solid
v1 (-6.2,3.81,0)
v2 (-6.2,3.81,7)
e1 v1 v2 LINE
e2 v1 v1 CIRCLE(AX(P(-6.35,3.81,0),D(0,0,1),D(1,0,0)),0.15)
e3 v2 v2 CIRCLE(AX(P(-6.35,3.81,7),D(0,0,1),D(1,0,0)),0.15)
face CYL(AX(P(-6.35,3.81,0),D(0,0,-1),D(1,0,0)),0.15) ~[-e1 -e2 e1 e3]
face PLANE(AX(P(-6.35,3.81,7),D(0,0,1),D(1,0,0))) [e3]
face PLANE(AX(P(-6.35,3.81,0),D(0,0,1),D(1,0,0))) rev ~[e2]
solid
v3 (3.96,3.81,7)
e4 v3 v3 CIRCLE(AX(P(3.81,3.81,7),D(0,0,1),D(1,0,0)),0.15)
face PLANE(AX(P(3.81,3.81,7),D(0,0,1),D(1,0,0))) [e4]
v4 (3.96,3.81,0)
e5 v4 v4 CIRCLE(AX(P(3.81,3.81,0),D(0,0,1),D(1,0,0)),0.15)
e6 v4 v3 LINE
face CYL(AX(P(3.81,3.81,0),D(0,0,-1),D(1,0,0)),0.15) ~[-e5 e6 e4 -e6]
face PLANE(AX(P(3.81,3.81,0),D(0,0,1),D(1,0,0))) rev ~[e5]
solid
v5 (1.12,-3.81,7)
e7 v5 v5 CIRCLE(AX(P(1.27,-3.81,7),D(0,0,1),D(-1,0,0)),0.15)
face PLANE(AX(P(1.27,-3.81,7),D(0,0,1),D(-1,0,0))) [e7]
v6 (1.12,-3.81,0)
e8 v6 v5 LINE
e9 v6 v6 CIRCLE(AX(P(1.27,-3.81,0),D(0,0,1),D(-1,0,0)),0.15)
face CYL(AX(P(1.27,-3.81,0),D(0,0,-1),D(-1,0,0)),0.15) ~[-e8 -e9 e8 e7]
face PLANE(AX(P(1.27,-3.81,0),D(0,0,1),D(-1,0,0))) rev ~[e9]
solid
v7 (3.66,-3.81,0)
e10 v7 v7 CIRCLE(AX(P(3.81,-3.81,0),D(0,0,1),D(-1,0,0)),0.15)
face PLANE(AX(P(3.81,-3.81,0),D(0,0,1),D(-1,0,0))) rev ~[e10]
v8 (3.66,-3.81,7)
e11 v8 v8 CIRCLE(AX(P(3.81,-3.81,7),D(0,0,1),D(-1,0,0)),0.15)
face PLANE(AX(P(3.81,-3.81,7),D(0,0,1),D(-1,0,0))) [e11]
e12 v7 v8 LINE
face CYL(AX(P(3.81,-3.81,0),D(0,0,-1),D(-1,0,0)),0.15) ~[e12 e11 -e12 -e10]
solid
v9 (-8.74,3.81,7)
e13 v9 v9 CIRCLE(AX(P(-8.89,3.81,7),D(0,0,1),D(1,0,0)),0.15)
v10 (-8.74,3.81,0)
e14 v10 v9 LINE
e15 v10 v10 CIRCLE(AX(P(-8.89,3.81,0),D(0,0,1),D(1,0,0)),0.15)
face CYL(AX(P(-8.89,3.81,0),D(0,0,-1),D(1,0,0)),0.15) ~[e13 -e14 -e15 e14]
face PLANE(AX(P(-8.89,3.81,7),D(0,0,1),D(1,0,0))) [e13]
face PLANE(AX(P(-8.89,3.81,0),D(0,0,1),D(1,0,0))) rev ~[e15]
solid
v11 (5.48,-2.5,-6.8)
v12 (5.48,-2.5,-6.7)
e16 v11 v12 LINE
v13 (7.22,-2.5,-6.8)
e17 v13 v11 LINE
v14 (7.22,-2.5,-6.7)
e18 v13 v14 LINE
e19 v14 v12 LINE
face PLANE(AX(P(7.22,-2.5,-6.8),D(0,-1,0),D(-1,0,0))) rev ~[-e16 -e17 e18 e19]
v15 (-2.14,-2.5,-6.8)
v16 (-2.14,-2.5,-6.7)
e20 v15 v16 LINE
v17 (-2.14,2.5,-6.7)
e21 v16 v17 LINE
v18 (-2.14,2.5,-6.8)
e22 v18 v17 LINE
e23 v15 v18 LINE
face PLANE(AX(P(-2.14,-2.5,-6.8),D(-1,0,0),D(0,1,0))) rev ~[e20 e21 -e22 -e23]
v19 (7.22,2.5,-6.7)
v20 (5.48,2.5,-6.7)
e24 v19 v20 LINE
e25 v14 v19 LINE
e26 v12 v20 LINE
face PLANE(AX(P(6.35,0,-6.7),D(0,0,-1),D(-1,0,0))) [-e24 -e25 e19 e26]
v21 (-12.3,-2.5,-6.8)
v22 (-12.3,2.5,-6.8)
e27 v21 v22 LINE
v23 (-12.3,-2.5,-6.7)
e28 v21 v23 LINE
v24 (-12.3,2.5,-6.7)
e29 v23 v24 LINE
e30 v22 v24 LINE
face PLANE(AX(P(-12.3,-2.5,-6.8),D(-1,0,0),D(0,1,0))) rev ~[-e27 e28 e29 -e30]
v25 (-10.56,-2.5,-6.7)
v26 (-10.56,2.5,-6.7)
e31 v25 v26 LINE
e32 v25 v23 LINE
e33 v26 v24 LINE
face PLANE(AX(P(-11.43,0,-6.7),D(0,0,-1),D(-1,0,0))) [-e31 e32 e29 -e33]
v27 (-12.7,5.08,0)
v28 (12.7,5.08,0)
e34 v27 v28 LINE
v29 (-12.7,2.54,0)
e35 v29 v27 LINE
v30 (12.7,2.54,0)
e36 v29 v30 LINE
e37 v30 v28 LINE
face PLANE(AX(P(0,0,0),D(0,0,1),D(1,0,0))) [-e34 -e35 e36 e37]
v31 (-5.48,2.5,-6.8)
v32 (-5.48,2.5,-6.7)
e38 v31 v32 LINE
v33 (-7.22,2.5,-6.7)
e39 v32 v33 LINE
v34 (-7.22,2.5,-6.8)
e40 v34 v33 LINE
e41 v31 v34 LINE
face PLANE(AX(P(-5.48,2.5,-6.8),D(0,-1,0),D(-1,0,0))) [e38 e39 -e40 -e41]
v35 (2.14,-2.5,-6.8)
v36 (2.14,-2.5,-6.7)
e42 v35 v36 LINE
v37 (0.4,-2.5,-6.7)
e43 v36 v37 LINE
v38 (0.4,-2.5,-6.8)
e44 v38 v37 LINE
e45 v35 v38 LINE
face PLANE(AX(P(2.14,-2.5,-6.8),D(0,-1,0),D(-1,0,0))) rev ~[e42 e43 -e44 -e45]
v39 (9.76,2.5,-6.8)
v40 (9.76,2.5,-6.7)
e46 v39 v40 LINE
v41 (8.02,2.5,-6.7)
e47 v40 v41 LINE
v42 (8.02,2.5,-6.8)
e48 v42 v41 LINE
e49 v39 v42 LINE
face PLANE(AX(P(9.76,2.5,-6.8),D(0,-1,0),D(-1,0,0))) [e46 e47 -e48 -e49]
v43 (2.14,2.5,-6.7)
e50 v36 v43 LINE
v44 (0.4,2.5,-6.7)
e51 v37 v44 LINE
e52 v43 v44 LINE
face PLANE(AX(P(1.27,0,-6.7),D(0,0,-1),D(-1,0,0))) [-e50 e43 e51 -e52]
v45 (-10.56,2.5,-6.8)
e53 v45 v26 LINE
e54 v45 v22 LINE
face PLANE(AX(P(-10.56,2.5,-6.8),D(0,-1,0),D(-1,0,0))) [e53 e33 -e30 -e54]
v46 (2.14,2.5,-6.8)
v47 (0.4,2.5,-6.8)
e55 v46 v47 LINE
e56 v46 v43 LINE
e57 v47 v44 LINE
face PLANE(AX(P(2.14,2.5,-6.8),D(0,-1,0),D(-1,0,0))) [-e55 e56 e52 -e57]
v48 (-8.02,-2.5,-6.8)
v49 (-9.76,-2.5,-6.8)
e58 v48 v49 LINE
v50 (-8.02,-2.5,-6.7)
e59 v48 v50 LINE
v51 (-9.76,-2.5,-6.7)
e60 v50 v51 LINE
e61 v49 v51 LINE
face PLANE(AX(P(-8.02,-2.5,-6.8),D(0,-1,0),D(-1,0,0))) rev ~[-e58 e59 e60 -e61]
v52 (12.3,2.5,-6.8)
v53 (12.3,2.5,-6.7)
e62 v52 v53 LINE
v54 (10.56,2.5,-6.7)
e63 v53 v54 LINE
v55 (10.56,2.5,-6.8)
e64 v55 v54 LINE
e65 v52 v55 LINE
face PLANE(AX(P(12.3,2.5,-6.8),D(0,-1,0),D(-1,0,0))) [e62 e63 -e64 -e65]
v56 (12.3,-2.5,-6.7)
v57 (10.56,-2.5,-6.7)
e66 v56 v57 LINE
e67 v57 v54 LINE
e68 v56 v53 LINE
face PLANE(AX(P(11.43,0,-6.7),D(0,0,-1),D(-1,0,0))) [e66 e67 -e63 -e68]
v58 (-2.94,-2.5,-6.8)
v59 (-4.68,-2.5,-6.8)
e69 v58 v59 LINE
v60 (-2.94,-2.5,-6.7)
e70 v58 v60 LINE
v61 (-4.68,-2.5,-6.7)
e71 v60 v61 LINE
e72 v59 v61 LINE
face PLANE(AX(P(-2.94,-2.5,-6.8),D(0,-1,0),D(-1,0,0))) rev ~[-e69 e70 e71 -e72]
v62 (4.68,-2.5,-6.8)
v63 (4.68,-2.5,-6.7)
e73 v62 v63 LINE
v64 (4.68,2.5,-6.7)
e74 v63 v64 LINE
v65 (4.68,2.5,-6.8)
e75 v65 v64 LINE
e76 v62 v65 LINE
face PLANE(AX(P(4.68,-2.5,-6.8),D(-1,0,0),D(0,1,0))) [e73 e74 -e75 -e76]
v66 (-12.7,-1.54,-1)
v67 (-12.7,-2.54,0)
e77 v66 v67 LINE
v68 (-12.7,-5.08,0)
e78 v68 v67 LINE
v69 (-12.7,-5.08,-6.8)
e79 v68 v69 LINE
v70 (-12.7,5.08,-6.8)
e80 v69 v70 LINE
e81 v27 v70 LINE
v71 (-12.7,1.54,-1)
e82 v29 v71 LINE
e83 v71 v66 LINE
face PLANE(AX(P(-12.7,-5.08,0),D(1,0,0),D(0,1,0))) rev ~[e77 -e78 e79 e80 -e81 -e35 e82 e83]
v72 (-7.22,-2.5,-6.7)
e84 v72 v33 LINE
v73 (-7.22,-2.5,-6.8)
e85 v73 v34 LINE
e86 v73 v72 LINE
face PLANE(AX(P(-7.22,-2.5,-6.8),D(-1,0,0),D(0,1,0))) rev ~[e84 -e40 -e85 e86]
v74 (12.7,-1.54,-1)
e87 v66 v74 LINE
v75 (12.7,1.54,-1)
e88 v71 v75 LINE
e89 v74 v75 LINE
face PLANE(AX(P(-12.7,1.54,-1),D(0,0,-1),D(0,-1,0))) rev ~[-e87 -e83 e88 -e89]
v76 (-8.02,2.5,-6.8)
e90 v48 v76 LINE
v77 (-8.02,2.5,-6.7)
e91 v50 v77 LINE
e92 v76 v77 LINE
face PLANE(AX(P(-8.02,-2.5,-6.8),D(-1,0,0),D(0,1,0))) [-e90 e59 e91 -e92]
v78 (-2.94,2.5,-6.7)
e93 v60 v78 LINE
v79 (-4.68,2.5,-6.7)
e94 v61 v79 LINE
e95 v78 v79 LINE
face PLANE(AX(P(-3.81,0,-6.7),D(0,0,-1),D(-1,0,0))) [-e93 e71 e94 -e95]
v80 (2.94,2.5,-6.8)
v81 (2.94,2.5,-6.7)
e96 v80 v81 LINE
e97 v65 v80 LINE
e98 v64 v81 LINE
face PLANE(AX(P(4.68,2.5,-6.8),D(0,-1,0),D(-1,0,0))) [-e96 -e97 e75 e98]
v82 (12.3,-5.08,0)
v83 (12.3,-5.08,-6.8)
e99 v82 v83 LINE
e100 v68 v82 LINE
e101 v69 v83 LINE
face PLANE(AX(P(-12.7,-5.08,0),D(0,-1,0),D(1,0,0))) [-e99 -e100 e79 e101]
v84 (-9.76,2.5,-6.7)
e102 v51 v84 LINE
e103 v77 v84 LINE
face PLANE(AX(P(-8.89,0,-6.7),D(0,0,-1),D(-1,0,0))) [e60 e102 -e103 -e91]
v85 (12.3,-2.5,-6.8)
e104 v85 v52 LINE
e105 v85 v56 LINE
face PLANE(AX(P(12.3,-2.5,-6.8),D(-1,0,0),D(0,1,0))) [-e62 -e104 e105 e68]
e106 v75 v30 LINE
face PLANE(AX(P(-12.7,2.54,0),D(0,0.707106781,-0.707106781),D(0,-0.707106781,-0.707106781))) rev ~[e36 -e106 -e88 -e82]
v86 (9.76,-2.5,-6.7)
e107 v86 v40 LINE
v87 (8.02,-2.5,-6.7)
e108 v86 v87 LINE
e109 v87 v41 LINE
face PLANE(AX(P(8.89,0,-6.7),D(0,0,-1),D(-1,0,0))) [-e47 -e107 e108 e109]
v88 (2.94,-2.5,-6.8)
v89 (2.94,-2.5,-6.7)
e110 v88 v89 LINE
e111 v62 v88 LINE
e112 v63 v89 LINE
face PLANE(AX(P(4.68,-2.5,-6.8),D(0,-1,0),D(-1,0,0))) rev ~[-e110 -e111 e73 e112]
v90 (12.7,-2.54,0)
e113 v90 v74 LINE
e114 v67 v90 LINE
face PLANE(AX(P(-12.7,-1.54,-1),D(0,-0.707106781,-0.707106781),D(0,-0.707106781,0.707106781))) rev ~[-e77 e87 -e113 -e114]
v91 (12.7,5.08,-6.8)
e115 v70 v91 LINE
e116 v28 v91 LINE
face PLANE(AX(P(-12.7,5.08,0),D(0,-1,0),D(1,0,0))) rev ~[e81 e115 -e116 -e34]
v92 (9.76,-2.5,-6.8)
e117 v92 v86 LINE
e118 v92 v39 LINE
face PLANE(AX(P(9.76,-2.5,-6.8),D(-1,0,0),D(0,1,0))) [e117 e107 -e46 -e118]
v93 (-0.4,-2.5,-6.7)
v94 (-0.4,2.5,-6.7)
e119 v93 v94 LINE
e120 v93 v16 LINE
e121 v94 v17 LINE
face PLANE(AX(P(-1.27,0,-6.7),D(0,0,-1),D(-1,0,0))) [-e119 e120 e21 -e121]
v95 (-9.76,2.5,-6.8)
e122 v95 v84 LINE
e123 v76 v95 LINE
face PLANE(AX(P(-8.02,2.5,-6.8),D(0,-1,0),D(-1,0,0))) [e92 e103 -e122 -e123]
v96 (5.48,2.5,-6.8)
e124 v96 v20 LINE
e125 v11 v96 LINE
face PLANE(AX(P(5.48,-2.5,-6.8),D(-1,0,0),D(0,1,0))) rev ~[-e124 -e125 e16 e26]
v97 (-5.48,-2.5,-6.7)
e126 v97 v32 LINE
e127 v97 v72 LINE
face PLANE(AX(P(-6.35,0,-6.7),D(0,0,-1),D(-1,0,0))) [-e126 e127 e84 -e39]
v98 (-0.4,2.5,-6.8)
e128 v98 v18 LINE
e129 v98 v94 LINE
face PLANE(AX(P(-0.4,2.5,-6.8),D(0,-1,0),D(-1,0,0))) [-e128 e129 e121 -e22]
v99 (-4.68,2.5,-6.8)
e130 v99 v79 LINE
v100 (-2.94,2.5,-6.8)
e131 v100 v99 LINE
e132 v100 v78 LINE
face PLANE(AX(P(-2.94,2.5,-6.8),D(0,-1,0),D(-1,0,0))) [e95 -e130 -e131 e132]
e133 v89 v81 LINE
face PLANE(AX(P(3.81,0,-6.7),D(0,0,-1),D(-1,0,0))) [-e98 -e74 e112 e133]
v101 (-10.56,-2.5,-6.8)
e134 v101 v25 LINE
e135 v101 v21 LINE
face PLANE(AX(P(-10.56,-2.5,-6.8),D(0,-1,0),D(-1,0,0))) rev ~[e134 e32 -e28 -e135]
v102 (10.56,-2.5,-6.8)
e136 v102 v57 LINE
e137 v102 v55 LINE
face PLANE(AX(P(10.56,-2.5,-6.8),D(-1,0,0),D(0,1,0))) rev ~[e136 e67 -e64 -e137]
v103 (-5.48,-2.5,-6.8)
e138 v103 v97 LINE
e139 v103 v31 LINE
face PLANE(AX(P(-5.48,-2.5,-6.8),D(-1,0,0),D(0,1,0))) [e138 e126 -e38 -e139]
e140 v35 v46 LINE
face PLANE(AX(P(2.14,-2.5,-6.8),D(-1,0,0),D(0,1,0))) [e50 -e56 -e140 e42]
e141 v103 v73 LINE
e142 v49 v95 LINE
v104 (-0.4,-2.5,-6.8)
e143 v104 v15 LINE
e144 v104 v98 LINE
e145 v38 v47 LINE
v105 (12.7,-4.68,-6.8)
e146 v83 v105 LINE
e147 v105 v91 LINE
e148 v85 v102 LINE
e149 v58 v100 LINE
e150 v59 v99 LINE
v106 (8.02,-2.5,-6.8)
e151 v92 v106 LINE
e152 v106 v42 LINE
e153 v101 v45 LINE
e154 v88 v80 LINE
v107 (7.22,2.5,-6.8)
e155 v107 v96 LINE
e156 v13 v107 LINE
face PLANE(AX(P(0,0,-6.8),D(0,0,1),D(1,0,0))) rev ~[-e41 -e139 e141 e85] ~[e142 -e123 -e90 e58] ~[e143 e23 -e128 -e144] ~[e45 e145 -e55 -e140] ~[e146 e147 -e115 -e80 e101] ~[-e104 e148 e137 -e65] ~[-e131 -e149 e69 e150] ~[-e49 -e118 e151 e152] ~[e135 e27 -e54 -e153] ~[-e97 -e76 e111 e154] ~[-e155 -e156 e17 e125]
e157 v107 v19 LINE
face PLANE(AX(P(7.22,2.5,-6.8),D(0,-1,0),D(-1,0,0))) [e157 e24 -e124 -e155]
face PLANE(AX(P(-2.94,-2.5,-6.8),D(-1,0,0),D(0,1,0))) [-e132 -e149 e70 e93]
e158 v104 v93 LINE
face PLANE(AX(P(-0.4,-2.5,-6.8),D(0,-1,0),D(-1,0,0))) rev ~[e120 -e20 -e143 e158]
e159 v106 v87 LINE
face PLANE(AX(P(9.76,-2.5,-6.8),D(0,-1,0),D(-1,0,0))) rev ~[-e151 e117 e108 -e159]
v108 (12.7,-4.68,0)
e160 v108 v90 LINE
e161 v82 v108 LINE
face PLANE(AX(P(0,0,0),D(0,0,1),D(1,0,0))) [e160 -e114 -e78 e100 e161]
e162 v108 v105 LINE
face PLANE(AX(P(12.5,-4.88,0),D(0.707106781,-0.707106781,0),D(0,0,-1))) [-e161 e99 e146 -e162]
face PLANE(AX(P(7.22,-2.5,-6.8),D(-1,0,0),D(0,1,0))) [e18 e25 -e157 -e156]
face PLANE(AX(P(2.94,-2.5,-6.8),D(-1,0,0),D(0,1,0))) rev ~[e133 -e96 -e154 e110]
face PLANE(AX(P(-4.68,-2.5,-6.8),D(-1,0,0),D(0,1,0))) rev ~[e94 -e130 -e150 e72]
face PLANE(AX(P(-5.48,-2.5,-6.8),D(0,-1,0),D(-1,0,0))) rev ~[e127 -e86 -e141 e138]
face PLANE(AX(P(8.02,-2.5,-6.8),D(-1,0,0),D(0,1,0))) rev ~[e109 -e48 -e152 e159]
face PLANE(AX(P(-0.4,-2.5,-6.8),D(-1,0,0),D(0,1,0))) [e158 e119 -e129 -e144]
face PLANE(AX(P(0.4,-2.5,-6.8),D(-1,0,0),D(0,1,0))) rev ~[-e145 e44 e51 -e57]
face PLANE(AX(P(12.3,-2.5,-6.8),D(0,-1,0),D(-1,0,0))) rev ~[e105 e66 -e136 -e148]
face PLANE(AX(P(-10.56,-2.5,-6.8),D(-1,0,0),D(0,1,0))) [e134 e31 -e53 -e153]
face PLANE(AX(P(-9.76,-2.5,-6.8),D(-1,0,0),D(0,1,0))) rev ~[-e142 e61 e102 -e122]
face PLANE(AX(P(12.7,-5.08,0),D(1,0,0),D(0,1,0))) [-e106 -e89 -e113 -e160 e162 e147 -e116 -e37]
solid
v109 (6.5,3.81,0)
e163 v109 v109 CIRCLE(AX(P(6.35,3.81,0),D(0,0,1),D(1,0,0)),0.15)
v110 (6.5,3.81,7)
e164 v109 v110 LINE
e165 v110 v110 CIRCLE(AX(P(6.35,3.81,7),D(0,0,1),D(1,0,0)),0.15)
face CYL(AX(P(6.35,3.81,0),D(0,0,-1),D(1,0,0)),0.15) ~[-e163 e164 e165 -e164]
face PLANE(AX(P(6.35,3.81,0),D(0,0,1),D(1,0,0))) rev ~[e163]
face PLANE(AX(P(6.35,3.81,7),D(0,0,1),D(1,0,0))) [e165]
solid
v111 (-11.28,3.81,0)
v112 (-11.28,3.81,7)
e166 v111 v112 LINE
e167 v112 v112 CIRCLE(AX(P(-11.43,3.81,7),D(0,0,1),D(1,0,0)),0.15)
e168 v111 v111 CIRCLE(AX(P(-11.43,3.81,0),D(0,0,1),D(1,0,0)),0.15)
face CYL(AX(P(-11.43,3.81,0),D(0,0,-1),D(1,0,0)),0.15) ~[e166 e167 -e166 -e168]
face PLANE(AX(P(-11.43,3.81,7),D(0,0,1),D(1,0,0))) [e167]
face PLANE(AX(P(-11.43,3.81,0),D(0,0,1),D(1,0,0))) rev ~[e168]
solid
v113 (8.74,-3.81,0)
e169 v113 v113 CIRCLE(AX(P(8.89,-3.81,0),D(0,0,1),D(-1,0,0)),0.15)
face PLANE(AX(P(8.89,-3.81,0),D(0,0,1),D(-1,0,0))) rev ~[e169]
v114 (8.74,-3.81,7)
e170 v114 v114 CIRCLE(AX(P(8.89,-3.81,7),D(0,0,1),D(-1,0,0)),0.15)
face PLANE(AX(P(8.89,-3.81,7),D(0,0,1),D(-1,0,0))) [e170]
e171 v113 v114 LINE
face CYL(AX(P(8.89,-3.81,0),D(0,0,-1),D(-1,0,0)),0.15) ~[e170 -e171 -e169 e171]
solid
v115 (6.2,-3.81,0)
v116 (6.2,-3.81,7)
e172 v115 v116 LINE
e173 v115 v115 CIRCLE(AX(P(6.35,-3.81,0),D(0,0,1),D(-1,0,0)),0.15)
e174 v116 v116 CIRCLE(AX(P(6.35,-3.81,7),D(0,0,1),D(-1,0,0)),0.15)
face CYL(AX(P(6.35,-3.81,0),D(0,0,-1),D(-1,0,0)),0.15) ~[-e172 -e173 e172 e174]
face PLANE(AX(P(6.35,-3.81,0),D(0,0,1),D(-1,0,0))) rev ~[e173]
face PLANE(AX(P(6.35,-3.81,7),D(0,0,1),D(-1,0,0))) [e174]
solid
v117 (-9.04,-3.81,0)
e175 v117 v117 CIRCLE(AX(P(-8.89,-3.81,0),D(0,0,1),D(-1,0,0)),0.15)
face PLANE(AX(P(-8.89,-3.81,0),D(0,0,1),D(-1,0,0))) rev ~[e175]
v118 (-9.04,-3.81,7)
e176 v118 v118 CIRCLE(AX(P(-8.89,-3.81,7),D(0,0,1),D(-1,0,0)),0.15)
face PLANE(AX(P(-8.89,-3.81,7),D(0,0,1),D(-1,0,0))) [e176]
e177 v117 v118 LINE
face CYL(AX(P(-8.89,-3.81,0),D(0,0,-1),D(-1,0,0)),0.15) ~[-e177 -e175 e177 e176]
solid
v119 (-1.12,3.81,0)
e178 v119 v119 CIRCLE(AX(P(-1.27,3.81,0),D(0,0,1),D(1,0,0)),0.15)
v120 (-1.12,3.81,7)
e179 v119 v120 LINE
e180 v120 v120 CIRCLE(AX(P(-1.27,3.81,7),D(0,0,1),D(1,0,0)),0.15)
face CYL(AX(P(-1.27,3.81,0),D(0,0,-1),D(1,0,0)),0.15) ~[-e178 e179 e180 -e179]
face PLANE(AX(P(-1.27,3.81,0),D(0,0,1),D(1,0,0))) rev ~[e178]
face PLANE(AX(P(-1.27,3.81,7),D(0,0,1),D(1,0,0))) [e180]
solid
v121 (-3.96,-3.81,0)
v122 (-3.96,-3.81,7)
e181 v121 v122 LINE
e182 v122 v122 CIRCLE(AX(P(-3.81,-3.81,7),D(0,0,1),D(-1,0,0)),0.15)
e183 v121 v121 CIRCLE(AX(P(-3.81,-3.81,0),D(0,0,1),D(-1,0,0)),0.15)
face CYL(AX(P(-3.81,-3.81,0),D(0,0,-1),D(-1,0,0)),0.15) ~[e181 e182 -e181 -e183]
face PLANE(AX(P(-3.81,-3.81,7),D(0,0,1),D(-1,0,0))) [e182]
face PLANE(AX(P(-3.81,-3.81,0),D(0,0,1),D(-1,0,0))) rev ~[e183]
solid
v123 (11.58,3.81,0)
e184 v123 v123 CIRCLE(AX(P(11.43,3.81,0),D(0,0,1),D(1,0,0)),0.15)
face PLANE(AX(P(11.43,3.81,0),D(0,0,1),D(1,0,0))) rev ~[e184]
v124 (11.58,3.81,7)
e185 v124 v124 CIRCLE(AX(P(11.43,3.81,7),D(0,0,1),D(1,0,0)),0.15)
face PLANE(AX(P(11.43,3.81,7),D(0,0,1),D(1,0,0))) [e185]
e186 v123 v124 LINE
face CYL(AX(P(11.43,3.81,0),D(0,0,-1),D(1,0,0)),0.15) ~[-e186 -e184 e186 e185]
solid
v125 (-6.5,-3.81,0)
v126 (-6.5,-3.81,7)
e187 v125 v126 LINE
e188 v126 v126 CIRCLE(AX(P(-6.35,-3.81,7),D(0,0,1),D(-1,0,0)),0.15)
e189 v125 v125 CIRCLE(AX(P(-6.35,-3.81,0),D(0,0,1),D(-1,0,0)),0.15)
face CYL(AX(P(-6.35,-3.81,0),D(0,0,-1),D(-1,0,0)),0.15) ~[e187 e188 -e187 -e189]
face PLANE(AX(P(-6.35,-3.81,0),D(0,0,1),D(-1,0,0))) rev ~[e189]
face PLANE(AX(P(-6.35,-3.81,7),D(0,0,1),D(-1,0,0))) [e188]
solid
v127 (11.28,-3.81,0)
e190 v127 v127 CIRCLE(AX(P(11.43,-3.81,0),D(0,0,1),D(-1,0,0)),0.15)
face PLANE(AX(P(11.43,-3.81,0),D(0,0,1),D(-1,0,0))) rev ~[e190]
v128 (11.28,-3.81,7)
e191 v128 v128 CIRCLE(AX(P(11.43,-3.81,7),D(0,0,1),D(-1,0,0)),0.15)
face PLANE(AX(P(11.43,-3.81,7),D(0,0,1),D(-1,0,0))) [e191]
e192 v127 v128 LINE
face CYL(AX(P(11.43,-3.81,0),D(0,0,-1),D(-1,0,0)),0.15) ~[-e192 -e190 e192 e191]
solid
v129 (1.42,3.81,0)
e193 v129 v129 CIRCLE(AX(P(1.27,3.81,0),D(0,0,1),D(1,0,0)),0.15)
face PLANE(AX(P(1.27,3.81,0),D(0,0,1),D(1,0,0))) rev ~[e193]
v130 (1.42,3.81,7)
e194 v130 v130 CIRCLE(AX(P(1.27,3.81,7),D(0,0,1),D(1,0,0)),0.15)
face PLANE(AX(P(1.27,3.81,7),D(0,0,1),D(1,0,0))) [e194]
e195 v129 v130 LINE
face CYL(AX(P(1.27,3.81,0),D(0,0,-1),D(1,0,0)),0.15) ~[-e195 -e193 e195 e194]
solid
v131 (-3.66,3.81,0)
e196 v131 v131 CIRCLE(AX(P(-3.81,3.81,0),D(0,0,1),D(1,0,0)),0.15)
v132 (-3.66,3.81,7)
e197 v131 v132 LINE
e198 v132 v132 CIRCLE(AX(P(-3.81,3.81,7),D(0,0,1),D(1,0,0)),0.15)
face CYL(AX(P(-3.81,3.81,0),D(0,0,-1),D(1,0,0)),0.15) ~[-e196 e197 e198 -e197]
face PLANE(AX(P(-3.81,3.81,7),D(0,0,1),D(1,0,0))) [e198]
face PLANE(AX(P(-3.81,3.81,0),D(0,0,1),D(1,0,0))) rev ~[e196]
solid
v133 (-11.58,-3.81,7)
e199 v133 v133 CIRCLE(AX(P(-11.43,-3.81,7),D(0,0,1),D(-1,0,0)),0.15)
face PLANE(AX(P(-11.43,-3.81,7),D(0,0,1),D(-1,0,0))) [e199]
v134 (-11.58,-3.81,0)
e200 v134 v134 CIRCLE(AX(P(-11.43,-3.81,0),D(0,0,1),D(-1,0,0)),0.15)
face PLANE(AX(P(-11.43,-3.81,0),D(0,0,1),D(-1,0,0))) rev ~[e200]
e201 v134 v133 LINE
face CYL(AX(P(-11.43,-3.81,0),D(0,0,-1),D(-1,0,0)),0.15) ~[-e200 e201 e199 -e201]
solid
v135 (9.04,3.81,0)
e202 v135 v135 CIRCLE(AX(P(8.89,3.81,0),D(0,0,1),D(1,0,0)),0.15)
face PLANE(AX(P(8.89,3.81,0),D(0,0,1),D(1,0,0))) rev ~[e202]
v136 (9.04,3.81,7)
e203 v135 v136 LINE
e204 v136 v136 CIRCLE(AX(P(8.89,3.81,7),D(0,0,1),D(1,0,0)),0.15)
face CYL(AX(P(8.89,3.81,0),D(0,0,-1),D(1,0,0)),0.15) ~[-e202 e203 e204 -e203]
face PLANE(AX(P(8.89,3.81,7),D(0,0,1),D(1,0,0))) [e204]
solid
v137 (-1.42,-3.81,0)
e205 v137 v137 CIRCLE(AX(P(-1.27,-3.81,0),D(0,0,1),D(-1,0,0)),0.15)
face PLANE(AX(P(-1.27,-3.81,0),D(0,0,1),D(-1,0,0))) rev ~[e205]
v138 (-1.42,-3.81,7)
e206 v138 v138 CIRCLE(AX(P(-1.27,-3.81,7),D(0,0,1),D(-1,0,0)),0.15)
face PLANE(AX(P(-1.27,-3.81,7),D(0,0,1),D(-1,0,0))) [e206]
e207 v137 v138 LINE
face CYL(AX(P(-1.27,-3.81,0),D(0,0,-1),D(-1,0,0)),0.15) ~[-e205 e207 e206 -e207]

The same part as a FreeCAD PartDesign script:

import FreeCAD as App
import Part
import Sketcher

V = App.Vector


def edges_at(feature, points):
    """Names of the edges that pass closest to the given points."""
    edges = feature.Shape.Edges
    near = lambda p: min(range(len(edges)), key=lambda i: edges[i].distToShape(Part.Vertex(*p))[0])
    return sorted({f"Edge{near(p) + 1}" for p in points})


def add_polygon(sketch, points):
    """Adds a closed chain of lines whose ends are joined by coincident constraints."""
    first, n = sketch.GeometryCount, len(points)
    for a, b in zip(points, points[1:] + points[:1]):
        sketch.addGeometry(Part.LineSegment(App.Vector(*a, 0), App.Vector(*b, 0)), False)
    for i in range(n):
        sketch.addConstraint(Sketcher.Constraint("Coincident", first + i, 2, first + (i + 1) % n, 1))

doc = App.newDocument("Part")
body = doc.addObject("PartDesign::Body", "Body")

# Sketch on XY plane
sketch1 = doc.addObject("Sketcher::SketchObject", "Sketch")
body.addObject(sketch1)
sketch1.AttachmentSupport = (doc.XY_Plane, [""])
sketch1.MapMode = "FlatFace"
add_polygon(sketch1, [(-12.7, 5.08), (-12.7, -5.08), (12.7, -5.08), (12.7, 5.08)])  # lines 0-3
sketch1.addConstraint([
    Sketcher.Constraint("Vertical", 0),
    Sketcher.Constraint("Horizontal", 1),
    Sketcher.Constraint("Vertical", 2),
    Sketcher.Constraint("Horizontal", 3),
    Sketcher.Constraint("Symmetric", 0, 2, 2, 2, -1, 1),
    Sketcher.Constraint("DistanceX", 1, 1, 1, 2, 25.4),
    Sketcher.Constraint("DistanceY", 0, 2, 0, 1, 10.16),
])
pad1 = doc.addObject("PartDesign::Pad", "Pad")
body.addObject(pad1)
pad1.Profile = sketch1
pad1.Length = 6.8
pad1.Reversed = True

# Sketch on YZ plane
sketch2 = doc.addObject("Sketcher::SketchObject", "Sketch001")
body.addObject(sketch2)
sketch2.AttachmentSupport = (doc.YZ_Plane, [""])
sketch2.MapMode = "FlatFace"
sketch2.AttachmentOffset = App.Placement(V(0, 0, -12.7), App.Rotation())
add_polygon(sketch2, [(-2.54, 0), (2.54, 0), (1.54, -1), (-1.54, -1)])  # lines 0-3
sketch2.addConstraint([
    Sketcher.Constraint("Horizontal", 0),
    Sketcher.Constraint("Horizontal", 2),
    Sketcher.Constraint("Symmetric", 0, 2, 3, 2, -1, 1),
    Sketcher.Constraint("Perpendicular", 1, 3),
    Sketcher.Constraint("Equal", 1, 3),
    Sketcher.Constraint("DistanceY", 1, 2, -1, 1, 1.0),
    Sketcher.Constraint("DistanceX", 0, 1, 0, 2, 5.08),
])
pocket1 = doc.addObject("PartDesign::Pocket", "Pocket")
body.addObject(pocket1)
pocket1.Profile = sketch2
pocket1.Type = "ThroughAll"
pocket1.Reversed = True

# Sketch on XY plane
sketch3 = doc.addObject("Sketcher::SketchObject", "Sketch002")
body.addObject(sketch3)
sketch3.AttachmentSupport = (doc.XY_Plane, [""])
sketch3.MapMode = "FlatFace"
sketch3.AttachmentOffset = App.Placement(V(0, 0, -6.8), App.Rotation())
add_polygon(sketch3, [(-10.56, 2.5), (-10.56, -2.5), (-12.3, -2.5), (-12.3, 2.5)])  # lines 0-3
add_polygon(sketch3, [(-8.02, 2.5), (-8.02, -2.5), (-9.76, -2.5), (-9.76, 2.5)])  # lines 4-7
add_polygon(sketch3, [(-5.48, 2.5), (-5.48, -2.5), (-7.22, -2.5), (-7.22, 2.5)])  # lines 8-11
add_polygon(sketch3, [(-2.94, 2.5), (-2.94, -2.5), (-4.68, -2.5), (-4.68, 2.5)])  # lines 12-15
add_polygon(sketch3, [(-0.4, 2.5), (-0.4, -2.5), (-2.14, -2.5), (-2.14, 2.5)])  # lines 16-19
add_polygon(sketch3, [(2.14, 2.5), (2.14, -2.5), (0.4, -2.5), (0.4, 2.5)])  # lines 20-23
add_polygon(sketch3, [(4.68, 2.5), (4.68, -2.5), (2.94, -2.5), (2.94, 2.5)])  # lines 24-27
add_polygon(sketch3, [(7.22, 2.5), (7.22, -2.5), (5.48, -2.5), (5.48, 2.5)])  # lines 28-31
add_polygon(sketch3, [(9.76, 2.5), (9.76, -2.5), (8.02, -2.5), (8.02, 2.5)])  # lines 32-35
add_polygon(sketch3, [(12.3, 2.5), (12.3, -2.5), (10.56, -2.5), (10.56, 2.5)])  # lines 36-39
sketch3.addConstraint([
    Sketcher.Constraint("Vertical", 0),
    Sketcher.Constraint("Horizontal", 1),
    Sketcher.Constraint("Vertical", 2),
    Sketcher.Constraint("Horizontal", 3),
    Sketcher.Constraint("Vertical", 4),
    Sketcher.Constraint("Horizontal", 5),
    Sketcher.Constraint("Vertical", 6),
    Sketcher.Constraint("Horizontal", 7),
    Sketcher.Constraint("Vertical", 8),
    Sketcher.Constraint("Horizontal", 9),
    Sketcher.Constraint("Vertical", 10),
    Sketcher.Constraint("Horizontal", 11),
    Sketcher.Constraint("Vertical", 12),
    Sketcher.Constraint("Horizontal", 13),
    Sketcher.Constraint("Vertical", 14),
    Sketcher.Constraint("Horizontal", 15),
    Sketcher.Constraint("Vertical", 16),
    Sketcher.Constraint("Horizontal", 17),
    Sketcher.Constraint("Vertical", 18),
    Sketcher.Constraint("Horizontal", 19),
    Sketcher.Constraint("Vertical", 20),
    Sketcher.Constraint("Horizontal", 21),
    Sketcher.Constraint("Vertical", 22),
    Sketcher.Constraint("Horizontal", 23),
    Sketcher.Constraint("Vertical", 24),
    Sketcher.Constraint("Horizontal", 25),
    Sketcher.Constraint("Vertical", 26),
    Sketcher.Constraint("Horizontal", 27),
    Sketcher.Constraint("Vertical", 28),
    Sketcher.Constraint("Horizontal", 29),
    Sketcher.Constraint("Vertical", 30),
    Sketcher.Constraint("Horizontal", 31),
    Sketcher.Constraint("Vertical", 32),
    Sketcher.Constraint("Horizontal", 33),
    Sketcher.Constraint("Vertical", 34),
    Sketcher.Constraint("Horizontal", 35),
    Sketcher.Constraint("Vertical", 36),
    Sketcher.Constraint("Horizontal", 37),
    Sketcher.Constraint("Vertical", 38),
    Sketcher.Constraint("Horizontal", 39),
    Sketcher.Constraint("Symmetric", 18, 2, 20, 2, -1, 1),
    Sketcher.Constraint("Symmetric", 16, 2, 22, 2, -1, 1),
    Sketcher.Constraint("Symmetric", 14, 2, 24, 2, -1, 1),
    Sketcher.Constraint("Symmetric", 12, 2, 26, 2, -1, 1),
    Sketcher.Constraint("Symmetric", 10, 2, 28, 2, -1, 1),
    Sketcher.Constraint("Symmetric", 8, 2, 30, 2, -1, 1),
    Sketcher.Constraint("Symmetric", 6, 2, 32, 2, -1, 1),
    Sketcher.Constraint("Symmetric", 4, 2, 34, 2, -1, 1),
    Sketcher.Constraint("Symmetric", 2, 2, 36, 2, -1, 1),
    Sketcher.Constraint("Symmetric", 0, 2, 38, 2, -1, 1),
    Sketcher.Constraint("Horizontal", 1, 2, 4, 2),
    Sketcher.Constraint("Horizontal", 3, 2, 6, 2),
    Sketcher.Constraint("Horizontal", 5, 2, 8, 2),
    Sketcher.Constraint("Horizontal", 7, 2, 10, 2),
    Sketcher.Constraint("Horizontal", 9, 2, 12, 2),
    Sketcher.Constraint("Horizontal", 11, 2, 14, 2),
    Sketcher.Constraint("Horizontal", 13, 2, 16, 2),
    Sketcher.Constraint("Horizontal", 15, 2, 18, 2),
    Sketcher.Constraint("Horizontal", 17, 2, 20, 2),
    Sketcher.Constraint("Equal", 3, 5),
    Sketcher.Constraint("Equal", 7, 9),
    Sketcher.Constraint("Equal", 11, 13),
    Sketcher.Constraint("Equal", 15, 17),
    Sketcher.Constraint("DistanceY", 0, 2, 0, 1, 5.0),
    Sketcher.Constraint("DistanceX", 1, 2, 1, 1, 1.74),
    Sketcher.Constraint("DistanceX", 1, 2, -1, 1, 12.3),
    Sketcher.Constraint("DistanceX", 16, 2, -1, 1, 0.4),
    Sketcher.Constraint("DistanceX", 0, 2, 5, 2, 0.8),
    Sketcher.Constraint("DistanceX", 4, 2, 9, 2, 0.8),
    Sketcher.Constraint("DistanceX", 8, 2, 13, 2, 0.8),
])
pocket2 = doc.addObject("PartDesign::Pocket", "Pocket001")
body.addObject(pocket2)
pocket2.Profile = sketch3
pocket2.Length = 0.1
pocket2.Reversed = True
doc.recompute()

chamfer = doc.addObject("PartDesign::Chamfer", "Chamfer")
body.addObject(chamfer)
chamfer.Base = (pocket2, edges_at(pocket2, [(12.7, -5.08, -3.4)]))
chamfer.Size = 0.4
body2 = doc.addObject("PartDesign::Body", "Body001")

# Sketch on XY plane
sketch4 = doc.addObject("Sketcher::SketchObject", "Sketch003")
body2.addObject(sketch4)
sketch4.AttachmentSupport = (doc.getObject("XY_Plane001"), [""])
sketch4.MapMode = "FlatFace"
sketch4.addGeometry(Part.Circle(V(11.43, 3.81, 0), V(0, 0, 1), 0.15), False)
sketch4.addConstraint([
    Sketcher.Constraint("Diameter", 0, 0.3),
    Sketcher.Constraint("DistanceX", -1, 1, 0, 3, 11.43),
    Sketcher.Constraint("DistanceY", -1, 1, 0, 3, 3.81),
])
pad2 = doc.addObject("PartDesign::Pad", "Pad001")
body2.addObject(pad2)
pad2.Profile = sketch4
pad2.Length = 7
body3 = doc.addObject("PartDesign::Body", "Body002")

# Sketch on XY plane
sketch5 = doc.addObject("Sketcher::SketchObject", "Sketch004")
body3.addObject(sketch5)
sketch5.AttachmentSupport = (doc.getObject("XY_Plane002"), [""])
sketch5.MapMode = "FlatFace"
sketch5.addGeometry(Part.Circle(V(8.89, 3.81, 0), V(0, 0, 1), 0.15), False)
sketch5.addConstraint([
    Sketcher.Constraint("Diameter", 0, 0.3),
    Sketcher.Constraint("DistanceX", -1, 1, 0, 3, 8.89),
    Sketcher.Constraint("DistanceY", -1, 1, 0, 3, 3.81),
])
pad3 = doc.addObject("PartDesign::Pad", "Pad002")
body3.addObject(pad3)
pad3.Profile = sketch5
pad3.Length = 7
body4 = doc.addObject("PartDesign::Body", "Body003")

# Sketch on XY plane
sketch6 = doc.addObject("Sketcher::SketchObject", "Sketch005")
body4.addObject(sketch6)
sketch6.AttachmentSupport = (doc.getObject("XY_Plane003"), [""])
sketch6.MapMode = "FlatFace"
sketch6.addGeometry(Part.Circle(V(6.35, 3.81, 0), V(0, 0, 1), 0.15), False)
sketch6.addConstraint([
    Sketcher.Constraint("Diameter", 0, 0.3),
    Sketcher.Constraint("DistanceX", -1, 1, 0, 3, 6.35),
    Sketcher.Constraint("DistanceY", -1, 1, 0, 3, 3.81),
])
pad4 = doc.addObject("PartDesign::Pad", "Pad003")
body4.addObject(pad4)
pad4.Profile = sketch6
pad4.Length = 7
body5 = doc.addObject("PartDesign::Body", "Body004")

# Sketch on XY plane
sketch7 = doc.addObject("Sketcher::SketchObject", "Sketch006")
body5.addObject(sketch7)
sketch7.AttachmentSupport = (doc.getObject("XY_Plane004"), [""])
sketch7.MapMode = "FlatFace"
sketch7.addGeometry(Part.Circle(V(3.81, 3.81, 0), V(0, 0, 1), 0.15), False)
sketch7.addConstraint([
    Sketcher.Constraint("Diameter", 0, 0.3),
    Sketcher.Constraint("DistanceX", -1, 1, 0, 3, 3.81),
    Sketcher.Constraint("DistanceY", -1, 1, 0, 3, 3.81),
])
pad5 = doc.addObject("PartDesign::Pad", "Pad004")
body5.addObject(pad5)
pad5.Profile = sketch7
pad5.Length = 7
body6 = doc.addObject("PartDesign::Body", "Body005")

# Sketch on XY plane
sketch8 = doc.addObject("Sketcher::SketchObject", "Sketch007")
body6.addObject(sketch8)
sketch8.AttachmentSupport = (doc.getObject("XY_Plane005"), [""])
sketch8.MapMode = "FlatFace"
sketch8.addGeometry(Part.Circle(V(1.27, 3.81, 0), V(0, 0, 1), 0.15), False)
sketch8.addConstraint([
    Sketcher.Constraint("Diameter", 0, 0.3),
    Sketcher.Constraint("DistanceX", -1, 1, 0, 3, 1.27),
    Sketcher.Constraint("DistanceY", -1, 1, 0, 3, 3.81),
])
pad6 = doc.addObject("PartDesign::Pad", "Pad005")
body6.addObject(pad6)
pad6.Profile = sketch8
pad6.Length = 7
body7 = doc.addObject("PartDesign::Body", "Body006")

# Sketch on XY plane
sketch9 = doc.addObject("Sketcher::SketchObject", "Sketch008")
body7.addObject(sketch9)
sketch9.AttachmentSupport = (doc.getObject("XY_Plane006"), [""])
sketch9.MapMode = "FlatFace"
sketch9.addGeometry(Part.Circle(V(-1.27, 3.81, 0), V(0, 0, 1), 0.15), False)
sketch9.addConstraint([
    Sketcher.Constraint("Diameter", 0, 0.3),
    Sketcher.Constraint("DistanceX", 0, 3, -1, 1, 1.27),
    Sketcher.Constraint("DistanceY", -1, 1, 0, 3, 3.81),
])
pad7 = doc.addObject("PartDesign::Pad", "Pad006")
body7.addObject(pad7)
pad7.Profile = sketch9
pad7.Length = 7
body8 = doc.addObject("PartDesign::Body", "Body007")

# Sketch on XY plane
sketch10 = doc.addObject("Sketcher::SketchObject", "Sketch009")
body8.addObject(sketch10)
sketch10.AttachmentSupport = (doc.getObject("XY_Plane007"), [""])
sketch10.MapMode = "FlatFace"
sketch10.addGeometry(Part.Circle(V(-3.81, 3.81, 0), V(0, 0, 1), 0.15), False)
sketch10.addConstraint([
    Sketcher.Constraint("Diameter", 0, 0.3),
    Sketcher.Constraint("DistanceX", 0, 3, -1, 1, 3.81),
    Sketcher.Constraint("DistanceY", -1, 1, 0, 3, 3.81),
])
pad8 = doc.addObject("PartDesign::Pad", "Pad007")
body8.addObject(pad8)
pad8.Profile = sketch10
pad8.Length = 7
body9 = doc.addObject("PartDesign::Body", "Body008")

# Sketch on XY plane
sketch11 = doc.addObject("Sketcher::SketchObject", "Sketch010")
body9.addObject(sketch11)
sketch11.AttachmentSupport = (doc.getObject("XY_Plane008"), [""])
sketch11.MapMode = "FlatFace"
sketch11.addGeometry(Part.Circle(V(-6.35, 3.81, 0), V(0, 0, 1), 0.15), False)
sketch11.addConstraint([
    Sketcher.Constraint("Diameter", 0, 0.3),
    Sketcher.Constraint("DistanceX", 0, 3, -1, 1, 6.35),
    Sketcher.Constraint("DistanceY", -1, 1, 0, 3, 3.81),
])
pad9 = doc.addObject("PartDesign::Pad", "Pad008")
body9.addObject(pad9)
pad9.Profile = sketch11
pad9.Length = 7
body10 = doc.addObject("PartDesign::Body", "Body009")

# Sketch on XY plane
sketch12 = doc.addObject("Sketcher::SketchObject", "Sketch011")
body10.addObject(sketch12)
sketch12.AttachmentSupport = (doc.getObject("XY_Plane009"), [""])
sketch12.MapMode = "FlatFace"
sketch12.addGeometry(Part.Circle(V(-8.89, 3.81, 0), V(0, 0, 1), 0.15), False)
sketch12.addConstraint([
    Sketcher.Constraint("Diameter", 0, 0.3),
    Sketcher.Constraint("DistanceX", 0, 3, -1, 1, 8.89),
    Sketcher.Constraint("DistanceY", -1, 1, 0, 3, 3.81),
])
pad10 = doc.addObject("PartDesign::Pad", "Pad009")
body10.addObject(pad10)
pad10.Profile = sketch12
pad10.Length = 7
body11 = doc.addObject("PartDesign::Body", "Body010")

# Sketch on XY plane
sketch13 = doc.addObject("Sketcher::SketchObject", "Sketch012")
body11.addObject(sketch13)
sketch13.AttachmentSupport = (doc.getObject("XY_Plane010"), [""])
sketch13.MapMode = "FlatFace"
sketch13.addGeometry(Part.Circle(V(-11.43, 3.81, 0), V(0, 0, 1), 0.15), False)
sketch13.addConstraint([
    Sketcher.Constraint("Diameter", 0, 0.3),
    Sketcher.Constraint("DistanceX", 0, 3, -1, 1, 11.43),
    Sketcher.Constraint("DistanceY", -1, 1, 0, 3, 3.81),
])
pad11 = doc.addObject("PartDesign::Pad", "Pad010")
body11.addObject(pad11)
pad11.Profile = sketch13
pad11.Length = 7
body12 = doc.addObject("PartDesign::Body", "Body011")

# Sketch on XY plane
sketch14 = doc.addObject("Sketcher::SketchObject", "Sketch013")
body12.addObject(sketch14)
sketch14.AttachmentSupport = (doc.getObject("XY_Plane011"), [""])
sketch14.MapMode = "FlatFace"
sketch14.addGeometry(Part.Circle(V(-11.43, -3.81, 0), V(0, 0, 1), 0.15), False)
sketch14.addConstraint([
    Sketcher.Constraint("Diameter", 0, 0.3),
    Sketcher.Constraint("DistanceX", 0, 3, -1, 1, 11.43),
    Sketcher.Constraint("DistanceY", 0, 3, -1, 1, 3.81),
])
pad12 = doc.addObject("PartDesign::Pad", "Pad011")
body12.addObject(pad12)
pad12.Profile = sketch14
pad12.Length = 7
body13 = doc.addObject("PartDesign::Body", "Body012")

# Sketch on XY plane
sketch15 = doc.addObject("Sketcher::SketchObject", "Sketch014")
body13.addObject(sketch15)
sketch15.AttachmentSupport = (doc.getObject("XY_Plane012"), [""])
sketch15.MapMode = "FlatFace"
sketch15.addGeometry(Part.Circle(V(-8.89, -3.81, 0), V(0, 0, 1), 0.15), False)
sketch15.addConstraint([
    Sketcher.Constraint("Diameter", 0, 0.3),
    Sketcher.Constraint("DistanceX", 0, 3, -1, 1, 8.89),
    Sketcher.Constraint("DistanceY", 0, 3, -1, 1, 3.81),
])
pad13 = doc.addObject("PartDesign::Pad", "Pad012")
body13.addObject(pad13)
pad13.Profile = sketch15
pad13.Length = 7
body14 = doc.addObject("PartDesign::Body", "Body013")

# Sketch on XY plane
sketch16 = doc.addObject("Sketcher::SketchObject", "Sketch015")
body14.addObject(sketch16)
sketch16.AttachmentSupport = (doc.getObject("XY_Plane013"), [""])
sketch16.MapMode = "FlatFace"
sketch16.addGeometry(Part.Circle(V(-6.35, -3.81, 0), V(0, 0, 1), 0.15), False)
sketch16.addConstraint([
    Sketcher.Constraint("Diameter", 0, 0.3),
    Sketcher.Constraint("DistanceX", 0, 3, -1, 1, 6.35),
    Sketcher.Constraint("DistanceY", 0, 3, -1, 1, 3.81),
])
pad14 = doc.addObject("PartDesign::Pad", "Pad013")
body14.addObject(pad14)
pad14.Profile = sketch16
pad14.Length = 7
body15 = doc.addObject("PartDesign::Body", "Body014")

# Sketch on XY plane
sketch17 = doc.addObject("Sketcher::SketchObject", "Sketch016")
body15.addObject(sketch17)
sketch17.AttachmentSupport = (doc.getObject("XY_Plane014"), [""])
sketch17.MapMode = "FlatFace"
sketch17.addGeometry(Part.Circle(V(-3.81, -3.81, 0), V(0, 0, 1), 0.15), False)
sketch17.addConstraint([
    Sketcher.Constraint("Diameter", 0, 0.3),
    Sketcher.Constraint("DistanceX", 0, 3, -1, 1, 3.81),
    Sketcher.Constraint("DistanceY", 0, 3, -1, 1, 3.81),
])
pad15 = doc.addObject("PartDesign::Pad", "Pad014")
body15.addObject(pad15)
pad15.Profile = sketch17
pad15.Length = 7
body16 = doc.addObject("PartDesign::Body", "Body015")

# Sketch on XY plane
sketch18 = doc.addObject("Sketcher::SketchObject", "Sketch017")
body16.addObject(sketch18)
sketch18.AttachmentSupport = (doc.getObject("XY_Plane015"), [""])
sketch18.MapMode = "FlatFace"
sketch18.addGeometry(Part.Circle(V(-1.27, -3.81, 0), V(0, 0, 1), 0.15), False)
sketch18.addConstraint([
    Sketcher.Constraint("Diameter", 0, 0.3),
    Sketcher.Constraint("DistanceX", 0, 3, -1, 1, 1.27),
    Sketcher.Constraint("DistanceY", 0, 3, -1, 1, 3.81),
])
pad16 = doc.addObject("PartDesign::Pad", "Pad015")
body16.addObject(pad16)
pad16.Profile = sketch18
pad16.Length = 7
body17 = doc.addObject("PartDesign::Body", "Body016")

# Sketch on XY plane
sketch19 = doc.addObject("Sketcher::SketchObject", "Sketch018")
body17.addObject(sketch19)
sketch19.AttachmentSupport = (doc.getObject("XY_Plane016"), [""])
sketch19.MapMode = "FlatFace"
sketch19.addGeometry(Part.Circle(V(1.27, -3.81, 0), V(0, 0, 1), 0.15), False)
sketch19.addConstraint([
    Sketcher.Constraint("Diameter", 0, 0.3),
    Sketcher.Constraint("DistanceX", -1, 1, 0, 3, 1.27),
    Sketcher.Constraint("DistanceY", 0, 3, -1, 1, 3.81),
])
pad17 = doc.addObject("PartDesign::Pad", "Pad016")
body17.addObject(pad17)
pad17.Profile = sketch19
pad17.Length = 7
body18 = doc.addObject("PartDesign::Body", "Body017")

# Sketch on XY plane
sketch20 = doc.addObject("Sketcher::SketchObject", "Sketch019")
body18.addObject(sketch20)
sketch20.AttachmentSupport = (doc.getObject("XY_Plane017"), [""])
sketch20.MapMode = "FlatFace"
sketch20.addGeometry(Part.Circle(V(3.81, -3.81, 0), V(0, 0, 1), 0.15), False)
sketch20.addConstraint([
    Sketcher.Constraint("Diameter", 0, 0.3),
    Sketcher.Constraint("DistanceX", -1, 1, 0, 3, 3.81),
    Sketcher.Constraint("DistanceY", 0, 3, -1, 1, 3.81),
])
pad18 = doc.addObject("PartDesign::Pad", "Pad017")
body18.addObject(pad18)
pad18.Profile = sketch20
pad18.Length = 7
body19 = doc.addObject("PartDesign::Body", "Body018")

# Sketch on XY plane
sketch21 = doc.addObject("Sketcher::SketchObject", "Sketch020")
body19.addObject(sketch21)
sketch21.AttachmentSupport = (doc.getObject("XY_Plane018"), [""])
sketch21.MapMode = "FlatFace"
sketch21.addGeometry(Part.Circle(V(6.35, -3.81, 0), V(0, 0, 1), 0.15), False)
sketch21.addConstraint([
    Sketcher.Constraint("Diameter", 0, 0.3),
    Sketcher.Constraint("DistanceX", -1, 1, 0, 3, 6.35),
    Sketcher.Constraint("DistanceY", 0, 3, -1, 1, 3.81),
])
pad19 = doc.addObject("PartDesign::Pad", "Pad018")
body19.addObject(pad19)
pad19.Profile = sketch21
pad19.Length = 7
body20 = doc.addObject("PartDesign::Body", "Body019")

# Sketch on XY plane
sketch22 = doc.addObject("Sketcher::SketchObject", "Sketch021")
body20.addObject(sketch22)
sketch22.AttachmentSupport = (doc.getObject("XY_Plane019"), [""])
sketch22.MapMode = "FlatFace"
sketch22.addGeometry(Part.Circle(V(8.89, -3.81, 0), V(0, 0, 1), 0.15), False)
sketch22.addConstraint([
    Sketcher.Constraint("Diameter", 0, 0.3),
    Sketcher.Constraint("DistanceX", -1, 1, 0, 3, 8.89),
    Sketcher.Constraint("DistanceY", 0, 3, -1, 1, 3.81),
])
pad20 = doc.addObject("PartDesign::Pad", "Pad019")
body20.addObject(pad20)
pad20.Profile = sketch22
pad20.Length = 7
body21 = doc.addObject("PartDesign::Body", "Body020")

# Sketch on XY plane
sketch23 = doc.addObject("Sketcher::SketchObject", "Sketch022")
body21.addObject(sketch23)
sketch23.AttachmentSupport = (doc.getObject("XY_Plane020"), [""])
sketch23.MapMode = "FlatFace"
sketch23.addGeometry(Part.Circle(V(11.43, -3.81, 0), V(0, 0, 1), 0.15), False)
sketch23.addConstraint([
    Sketcher.Constraint("Diameter", 0, 0.3),
    Sketcher.Constraint("DistanceX", -1, 1, 0, 3, 11.43),
    Sketcher.Constraint("DistanceY", 0, 3, -1, 1, 3.81),
])
pad21 = doc.addObject("PartDesign::Pad", "Pad020")
body21.addObject(pad21)
pad21.Profile = sketch23
pad21.Length = 7

doc.recompute()
